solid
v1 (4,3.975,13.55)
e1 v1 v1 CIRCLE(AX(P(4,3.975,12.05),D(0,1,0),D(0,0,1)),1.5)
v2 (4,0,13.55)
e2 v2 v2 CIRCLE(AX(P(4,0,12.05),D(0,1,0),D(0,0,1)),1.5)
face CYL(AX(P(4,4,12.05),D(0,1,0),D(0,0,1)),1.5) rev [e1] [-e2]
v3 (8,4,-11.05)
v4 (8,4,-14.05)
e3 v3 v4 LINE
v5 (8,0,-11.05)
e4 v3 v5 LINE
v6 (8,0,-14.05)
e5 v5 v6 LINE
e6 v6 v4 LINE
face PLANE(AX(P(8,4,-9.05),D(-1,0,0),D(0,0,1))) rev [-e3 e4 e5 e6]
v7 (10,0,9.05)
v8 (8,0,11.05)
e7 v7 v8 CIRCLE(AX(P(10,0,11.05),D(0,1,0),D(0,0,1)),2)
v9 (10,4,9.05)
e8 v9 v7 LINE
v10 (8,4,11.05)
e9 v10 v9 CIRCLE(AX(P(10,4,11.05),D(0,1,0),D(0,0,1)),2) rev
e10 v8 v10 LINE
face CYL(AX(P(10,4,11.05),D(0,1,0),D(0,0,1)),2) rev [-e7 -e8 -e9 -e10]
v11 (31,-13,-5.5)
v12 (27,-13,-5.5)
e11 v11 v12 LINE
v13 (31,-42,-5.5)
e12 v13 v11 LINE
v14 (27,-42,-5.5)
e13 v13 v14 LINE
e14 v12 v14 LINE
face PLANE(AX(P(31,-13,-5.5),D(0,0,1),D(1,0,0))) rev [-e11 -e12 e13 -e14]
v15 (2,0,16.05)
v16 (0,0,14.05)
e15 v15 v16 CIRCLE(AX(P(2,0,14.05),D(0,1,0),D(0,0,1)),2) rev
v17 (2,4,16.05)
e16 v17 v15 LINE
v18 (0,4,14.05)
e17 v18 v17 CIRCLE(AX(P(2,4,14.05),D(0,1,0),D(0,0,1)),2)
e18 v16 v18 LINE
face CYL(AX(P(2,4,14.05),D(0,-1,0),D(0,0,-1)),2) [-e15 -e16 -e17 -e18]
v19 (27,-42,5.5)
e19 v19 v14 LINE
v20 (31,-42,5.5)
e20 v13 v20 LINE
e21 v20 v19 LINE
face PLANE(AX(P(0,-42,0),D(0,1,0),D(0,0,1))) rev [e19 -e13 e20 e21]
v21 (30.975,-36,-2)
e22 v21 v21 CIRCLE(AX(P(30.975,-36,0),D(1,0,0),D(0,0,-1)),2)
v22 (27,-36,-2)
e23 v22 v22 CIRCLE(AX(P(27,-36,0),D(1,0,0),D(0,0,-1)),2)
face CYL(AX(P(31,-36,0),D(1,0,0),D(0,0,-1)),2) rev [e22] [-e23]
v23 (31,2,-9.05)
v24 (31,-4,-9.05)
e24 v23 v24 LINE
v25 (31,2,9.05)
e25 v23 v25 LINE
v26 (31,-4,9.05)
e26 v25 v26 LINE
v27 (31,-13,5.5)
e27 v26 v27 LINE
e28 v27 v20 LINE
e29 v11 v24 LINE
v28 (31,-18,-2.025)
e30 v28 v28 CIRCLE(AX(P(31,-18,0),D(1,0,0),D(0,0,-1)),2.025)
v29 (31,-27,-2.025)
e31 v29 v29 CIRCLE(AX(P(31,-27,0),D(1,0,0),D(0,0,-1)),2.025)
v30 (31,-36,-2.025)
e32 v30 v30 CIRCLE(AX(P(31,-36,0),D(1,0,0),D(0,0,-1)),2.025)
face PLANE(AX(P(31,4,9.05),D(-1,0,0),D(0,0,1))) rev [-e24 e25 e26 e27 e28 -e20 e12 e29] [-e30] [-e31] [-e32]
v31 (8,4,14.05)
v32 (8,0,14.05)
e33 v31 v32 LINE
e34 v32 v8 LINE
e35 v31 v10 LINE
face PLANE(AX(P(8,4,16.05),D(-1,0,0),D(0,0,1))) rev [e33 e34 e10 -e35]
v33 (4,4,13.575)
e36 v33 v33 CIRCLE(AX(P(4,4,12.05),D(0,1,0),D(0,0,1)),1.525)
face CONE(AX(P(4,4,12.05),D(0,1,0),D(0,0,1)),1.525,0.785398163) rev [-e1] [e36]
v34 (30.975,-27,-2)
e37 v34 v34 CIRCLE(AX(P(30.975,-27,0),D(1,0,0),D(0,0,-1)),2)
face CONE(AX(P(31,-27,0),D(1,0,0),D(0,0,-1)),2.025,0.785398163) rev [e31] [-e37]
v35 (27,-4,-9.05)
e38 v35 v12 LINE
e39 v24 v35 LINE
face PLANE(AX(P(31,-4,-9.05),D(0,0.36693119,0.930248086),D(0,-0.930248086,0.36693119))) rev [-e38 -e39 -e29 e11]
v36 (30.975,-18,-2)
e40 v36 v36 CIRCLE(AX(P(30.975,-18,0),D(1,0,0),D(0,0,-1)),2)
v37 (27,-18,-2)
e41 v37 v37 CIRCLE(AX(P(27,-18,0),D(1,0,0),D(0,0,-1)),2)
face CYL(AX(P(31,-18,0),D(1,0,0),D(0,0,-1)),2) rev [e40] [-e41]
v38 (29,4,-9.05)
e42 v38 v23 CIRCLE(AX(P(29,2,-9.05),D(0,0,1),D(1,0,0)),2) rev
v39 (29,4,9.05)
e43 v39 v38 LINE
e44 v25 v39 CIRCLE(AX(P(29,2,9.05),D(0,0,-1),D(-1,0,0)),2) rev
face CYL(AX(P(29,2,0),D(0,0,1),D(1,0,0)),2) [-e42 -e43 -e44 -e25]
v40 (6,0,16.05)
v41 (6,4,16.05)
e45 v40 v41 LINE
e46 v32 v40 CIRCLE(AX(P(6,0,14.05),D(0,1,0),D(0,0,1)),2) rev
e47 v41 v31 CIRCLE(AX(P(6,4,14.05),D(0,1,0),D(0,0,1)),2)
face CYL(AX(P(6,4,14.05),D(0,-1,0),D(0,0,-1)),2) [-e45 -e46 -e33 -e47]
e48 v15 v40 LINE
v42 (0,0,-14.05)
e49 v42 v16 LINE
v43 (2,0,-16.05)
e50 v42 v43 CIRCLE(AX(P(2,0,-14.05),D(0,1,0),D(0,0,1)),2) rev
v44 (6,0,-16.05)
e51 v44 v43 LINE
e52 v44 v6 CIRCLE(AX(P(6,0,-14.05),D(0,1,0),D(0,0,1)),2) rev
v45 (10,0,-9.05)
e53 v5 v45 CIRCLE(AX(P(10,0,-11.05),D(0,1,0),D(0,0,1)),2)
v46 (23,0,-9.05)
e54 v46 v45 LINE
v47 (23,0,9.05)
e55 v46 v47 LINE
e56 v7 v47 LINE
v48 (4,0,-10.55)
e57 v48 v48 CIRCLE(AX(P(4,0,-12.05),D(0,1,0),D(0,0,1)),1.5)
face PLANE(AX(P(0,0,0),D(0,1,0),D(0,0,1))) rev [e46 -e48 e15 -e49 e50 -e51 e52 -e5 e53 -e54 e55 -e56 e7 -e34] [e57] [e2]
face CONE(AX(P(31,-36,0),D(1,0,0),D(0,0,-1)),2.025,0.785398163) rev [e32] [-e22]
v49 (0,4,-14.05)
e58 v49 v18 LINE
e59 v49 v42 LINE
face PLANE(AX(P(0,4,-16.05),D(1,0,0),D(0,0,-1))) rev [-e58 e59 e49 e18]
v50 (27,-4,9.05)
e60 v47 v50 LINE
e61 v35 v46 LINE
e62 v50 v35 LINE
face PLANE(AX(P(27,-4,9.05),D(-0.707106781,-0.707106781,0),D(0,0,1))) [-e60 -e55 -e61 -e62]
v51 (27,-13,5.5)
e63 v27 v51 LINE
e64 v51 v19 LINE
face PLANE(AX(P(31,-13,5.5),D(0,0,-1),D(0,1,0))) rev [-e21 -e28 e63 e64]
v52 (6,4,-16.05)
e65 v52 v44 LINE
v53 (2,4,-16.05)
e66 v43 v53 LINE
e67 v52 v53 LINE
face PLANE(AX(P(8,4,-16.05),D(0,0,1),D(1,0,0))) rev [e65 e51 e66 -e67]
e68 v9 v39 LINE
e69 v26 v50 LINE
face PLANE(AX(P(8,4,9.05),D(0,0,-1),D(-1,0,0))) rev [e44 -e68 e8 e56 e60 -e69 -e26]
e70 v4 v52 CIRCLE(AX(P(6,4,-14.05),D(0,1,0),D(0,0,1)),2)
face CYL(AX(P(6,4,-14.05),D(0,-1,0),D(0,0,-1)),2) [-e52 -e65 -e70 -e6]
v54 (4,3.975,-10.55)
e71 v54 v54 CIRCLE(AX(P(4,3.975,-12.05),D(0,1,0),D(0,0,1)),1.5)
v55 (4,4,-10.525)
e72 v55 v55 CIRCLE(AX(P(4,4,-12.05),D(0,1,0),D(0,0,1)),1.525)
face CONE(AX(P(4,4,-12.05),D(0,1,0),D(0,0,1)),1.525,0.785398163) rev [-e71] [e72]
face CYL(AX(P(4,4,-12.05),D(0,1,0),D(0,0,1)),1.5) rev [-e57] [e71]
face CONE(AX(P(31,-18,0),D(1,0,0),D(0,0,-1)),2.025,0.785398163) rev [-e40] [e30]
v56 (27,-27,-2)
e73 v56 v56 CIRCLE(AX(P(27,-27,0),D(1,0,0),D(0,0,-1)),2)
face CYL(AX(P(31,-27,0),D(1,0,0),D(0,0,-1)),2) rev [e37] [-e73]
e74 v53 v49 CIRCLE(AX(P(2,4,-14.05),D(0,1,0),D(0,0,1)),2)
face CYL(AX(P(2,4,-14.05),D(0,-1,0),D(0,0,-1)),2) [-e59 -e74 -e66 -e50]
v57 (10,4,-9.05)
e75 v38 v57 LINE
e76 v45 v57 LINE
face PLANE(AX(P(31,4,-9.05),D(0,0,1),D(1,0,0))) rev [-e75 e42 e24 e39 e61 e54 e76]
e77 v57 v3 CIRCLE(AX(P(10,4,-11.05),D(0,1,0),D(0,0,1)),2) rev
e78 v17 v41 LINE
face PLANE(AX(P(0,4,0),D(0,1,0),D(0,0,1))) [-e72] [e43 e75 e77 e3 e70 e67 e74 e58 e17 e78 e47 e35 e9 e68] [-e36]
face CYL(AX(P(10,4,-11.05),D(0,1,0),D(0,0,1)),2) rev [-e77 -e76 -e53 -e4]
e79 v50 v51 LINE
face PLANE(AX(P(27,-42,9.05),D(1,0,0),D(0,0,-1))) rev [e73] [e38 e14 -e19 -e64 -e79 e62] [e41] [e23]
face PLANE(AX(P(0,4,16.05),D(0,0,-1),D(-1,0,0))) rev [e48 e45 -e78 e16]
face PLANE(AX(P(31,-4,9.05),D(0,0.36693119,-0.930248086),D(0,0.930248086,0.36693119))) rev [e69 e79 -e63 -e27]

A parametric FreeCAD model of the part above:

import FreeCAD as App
import Part
import Sketcher

V = App.Vector
Q = App.Units.Quantity


def edges_at(feature, points):
    """Names of the edges that pass closest to the given points."""
    edges = feature.Shape.Edges
    near = lambda p: min(range(len(edges)), key=lambda i: edges[i].distToShape(Part.Vertex(*p))[0])
    return sorted({f"Edge{near(p) + 1}" for p in points})


def add_polygon(sketch, points):
    """Adds a closed chain of lines whose ends are joined by coincident constraints."""
    first, n = sketch.GeometryCount, len(points)
    for a, b in zip(points, points[1:] + points[:1]):
        sketch.addGeometry(Part.LineSegment(App.Vector(*a, 0), App.Vector(*b, 0)), False)
    for i in range(n):
        sketch.addConstraint(Sketcher.Constraint("Coincident", first + i, 2, first + (i + 1) % n, 1))

doc = App.newDocument("Part")
params = doc.addObject("Spreadsheet::Sheet", "Params")
for row, (alias, value) in enumerate([
    ("sketch1_width", "8 mm"),
    ("sketch1_width2", "23 mm"),
    ("sketch1_height", "7 mm"),
    ("sketch1_height2", "32.1 mm"),
    ("pad1_length", "4 mm"),
    ("fillet_radius", "2 mm"),
    ("sketch2_diameter", "3 mm"),
    ("hole_diameter", "3 mm"),
    ("hole_csink_diameter", "3.05 mm"),
    ("sketch3_width", "4 mm"),
    ("sketch3_height", "18.1 mm"),
    ("pad2_length", "42 mm"),
    ("chamfer_size", "4 mm"),
    ("fillet2_radius", "2 mm"),
    ("sketch4_diameter", "4 mm"),
    ("hole2_diameter", "4 mm"),
    ("hole2_csink_diameter", "4.05 mm"),
    ("sketch5_width", "38 mm"),
    ("sketch5_width2", "29 mm"),
    ("sketch5_height", "3.55 mm"),
    ("sketch6_width", "29 mm"),
    ("sketch6_width2", "38 mm"),
    ("sketch6_height", "3.55 mm"),
], start=1):
    params.set(f"A{row}", alias)
    params.set(f"B{row}", "=" + value)
    params.setAlias(f"B{row}", alias)

body = doc.addObject("PartDesign::Body", "Body")

# Sketch on XZ plane
sketch1 = doc.addObject("Sketcher::SketchObject", "Sketch")
body.addObject(sketch1)
sketch1.AttachmentSupport = (doc.XZ_Plane, [""])
sketch1.MapMode = "FlatFace"
add_polygon(sketch1, [(0, -16), (0, 16), (8, 16), (8, 9), (31, 9), (31, -9), (8, -9), (8, -16)])  # lines 0-7
sketch1.addConstraint([
    Sketcher.Constraint("Vertical", 0),
    Sketcher.Constraint("Horizontal", 1),
    Sketcher.Constraint("Vertical", 2),
    Sketcher.Constraint("Horizontal", 3),
    Sketcher.Constraint("Vertical", 4),
    Sketcher.Constraint("Horizontal", 5),
    Sketcher.Constraint("Vertical", 6),
    Sketcher.Constraint("Horizontal", 7),
    Sketcher.Constraint("Symmetric", 0, 2, 7, 2, -1, 1),
    Sketcher.Constraint("Symmetric", 2, 2, 5, 2, -1),
    Sketcher.Constraint("DistanceX", 1, 1, 1, 2, Q("8 mm")),
    Sketcher.Constraint("DistanceX", 3, 1, 3, 2, Q("23 mm")),
    Sketcher.Constraint("DistanceY", 2, 2, 2, 1, Q("7 mm")),
    Sketcher.Constraint("DistanceY", 0, 1, 0, 2, Q("32.1 mm")),
])
sketch1.setExpression("Constraints[18]", "Params.sketch1_width")
sketch1.setExpression("Constraints[19]", "Params.sketch1_width2")
sketch1.setExpression("Constraints[20]", "Params.sketch1_height")
sketch1.setExpression("Constraints[21]", "Params.sketch1_height2")
pad1 = doc.addObject("PartDesign::Pad", "Pad")
body.addObject(pad1)
pad1.Profile = sketch1
pad1.setExpression("Length", "Params.pad1_length")
pad1.Reversed = True
doc.recompute()

fillet = doc.addObject("PartDesign::Fillet", "Fillet")
body.addObject(fillet)
fillet.Base = (pad1, edges_at(pad1, [
    (8, 2, -16.05),
    (8, 2, -9.05),
    (8, 2, 9.05),
    (8, 2, 16.05),
    (0, 2, 16.05),
    (0, 2, -16.05),
]))
fillet.setExpression("Radius", "Params.fillet_radius")

# Sketch on XZ plane
sketch2 = doc.addObject("Sketcher::SketchObject", "Sketch001")
body.addObject(sketch2)
sketch2.AttachmentSupport = (doc.XZ_Plane, [""])
sketch2.MapMode = "FlatFace"
sketch2.AttachmentOffset = App.Placement(V(0, 0, -4), App.Rotation())
sketch2.addGeometry([
    Part.Circle(V(4, -12.1, 0), V(0, 0, 1), 1.5),
    Part.Circle(V(4, 12.1, 0), V(0, 0, 1), 1.5),
], False)
sketch2.addConstraint([
    Sketcher.Constraint("Equal", 0, 1),
    Sketcher.Constraint("Symmetric", 0, 3, 1, 3, -1),
    Sketcher.Constraint("Diameter", 0, Q("3 mm")),
    Sketcher.Constraint("DistanceX", -1, 1, 0, 3, Q("4 mm")),
    Sketcher.Constraint("DistanceY", 0, 3, 1, 3, Q("24.1 mm")),
])
sketch2.setExpression("Constraints[2]", "Params.sketch2_diameter")
doc.recompute()
hole = doc.addObject("PartDesign::Hole", "Hole")
body.addObject(hole)
hole.Profile = sketch2
hole.ThreadType = "None"
hole.setExpression("Diameter", "Params.hole_diameter")
hole.DepthType = "ThroughAll"
hole.HoleCutType = "Countersink"
hole.setExpression("HoleCutDiameter", "Params.hole_csink_diameter")
hole.HoleCutCountersinkAngle = 90
hole.Reversed = True

# Sketch on XZ plane
sketch3 = doc.addObject("Sketcher::SketchObject", "Sketch002")
body.addObject(sketch3)
sketch3.AttachmentSupport = (doc.XZ_Plane, [""])
sketch3.MapMode = "FlatFace"
add_polygon(sketch3, [(31, -9.1), (31, 9.1), (27, 9.1), (27, -9.1)])  # lines 0-3
sketch3.addConstraint([
    Sketcher.Constraint("Vertical", 0),
    Sketcher.Constraint("Horizontal", 1),
    Sketcher.Constraint("Vertical", 2),
    Sketcher.Constraint("Horizontal", 3),
    Sketcher.Constraint("DistanceX", 1, 2, 1, 1, Q("4 mm")),
    Sketcher.Constraint("DistanceY", 0, 1, 0, 2, Q("18.1 mm")),
    Sketcher.Constraint("DistanceX", -1, 1, 0, 2, Q("31 mm")),
    Sketcher.Constraint("DistanceY", -1, 1, 0, 2, Q("9.05 mm")),
])
sketch3.setExpression("Constraints[8]", "Params.sketch3_width")
sketch3.setExpression("Constraints[9]", "Params.sketch3_height")
pad2 = doc.addObject("PartDesign::Pad", "Pad001")
body.addObject(pad2)
pad2.Profile = sketch3
pad2.setExpression("Length", "Params.pad2_length")
doc.recompute()

chamfer = doc.addObject("PartDesign::Chamfer", "Chamfer")
body.addObject(chamfer)
chamfer.Base = (pad2, edges_at(pad2, [(27, 0, 0)]))
chamfer.setExpression("Size", "Params.chamfer_size")
doc.recompute()

fillet2 = doc.addObject("PartDesign::Fillet", "Fillet001")
body.addObject(fillet2)
fillet2.Base = (chamfer, edges_at(chamfer, [(31, 4, 0)]))
fillet2.setExpression("Radius", "Params.fillet2_radius")

# Sketch on YZ plane
sketch4 = doc.addObject("Sketcher::SketchObject", "Sketch003")
body.addObject(sketch4)
sketch4.AttachmentSupport = (doc.YZ_Plane, [""])
sketch4.MapMode = "FlatFace"
sketch4.AttachmentOffset = App.Placement(V(0, 0, 31), App.Rotation())
sketch4.addGeometry([
    Part.Circle(V(-36, 0, 0), V(0, 0, 1), 2),
    Part.Circle(V(-27, 0, 0), V(0, 0, 1), 2),
    Part.Circle(V(-18, 0, 0), V(0, 0, 1), 2),
], False)
sketch4.addConstraint([
    Sketcher.Constraint("Equal", 0, 1),
    Sketcher.Constraint("Equal", 1, 2),
    Sketcher.Constraint("PointOnObject", 0, 3, -1),
    Sketcher.Constraint("PointOnObject", 1, 3, -1),
    Sketcher.Constraint("PointOnObject", 2, 3, -1),
    Sketcher.Constraint("Diameter", 0, Q("4 mm")),
    Sketcher.Constraint("DistanceX", 0, 3, -1, 1, Q("36 mm")),
    Sketcher.Constraint("DistanceX", 1, 3, -1, 1, Q("27 mm")),
    Sketcher.Constraint("DistanceX", 2, 3, -1, 1, Q("18 mm")),
])
sketch4.setExpression("Constraints[5]", "Params.sketch4_diameter")
doc.recompute()
hole2 = doc.addObject("PartDesign::Hole", "Hole001")
body.addObject(hole2)
hole2.Profile = sketch4
hole2.ThreadType = "None"
hole2.setExpression("Diameter", "Params.hole2_diameter")
hole2.DepthType = "ThroughAll"
hole2.HoleCutType = "Countersink"
hole2.setExpression("HoleCutDiameter", "Params.hole2_csink_diameter")
hole2.HoleCutCountersinkAngle = 90

# Sketch on YZ plane
sketch5 = doc.addObject("Sketcher::SketchObject", "Sketch004")
body.addObject(sketch5)
sketch5.AttachmentSupport = (doc.YZ_Plane, [""])
sketch5.MapMode = "FlatFace"
sketch5.AttachmentOffset = App.Placement(V(0, 0, 27), App.Rotation())
add_polygon(sketch5, [(-13, -5.5), (-4, -9.1), (-42, -9.1), (-42, -5.5)])  # lines 0-3
sketch5.addConstraint([
    Sketcher.Constraint("Horizontal", 1),
    Sketcher.Constraint("Vertical", 2),
    Sketcher.Constraint("Horizontal", 3),
    Sketcher.Constraint("DistanceX", 1, 2, 1, 1, Q("38 mm")),
    Sketcher.Constraint("DistanceX", 3, 1, 3, 2, Q("29 mm")),
    Sketcher.Constraint("DistanceX", 0, 2, -1, 1, Q("4 mm")),
    Sketcher.Constraint("DistanceY", 2, 1, 2, 2, Q("3.55 mm")),
    Sketcher.Constraint("DistanceY", 2, 2, -1, 1, Q("5.5 mm")),
])
sketch5.setExpression("Constraints[7]", "Params.sketch5_width")
sketch5.setExpression("Constraints[8]", "Params.sketch5_width2")
sketch5.setExpression("Constraints[10]", "Params.sketch5_height")
pocket1 = doc.addObject("PartDesign::Pocket", "Pocket")
body.addObject(pocket1)
pocket1.Profile = sketch5
pocket1.Type = "ThroughAll"
pocket1.Midplane = True

# Sketch on YZ plane
sketch6 = doc.addObject("Sketcher::SketchObject", "Sketch005")
body.addObject(sketch6)
sketch6.AttachmentSupport = (doc.YZ_Plane, [""])
sketch6.MapMode = "FlatFace"
sketch6.AttachmentOffset = App.Placement(V(0, 0, 27), App.Rotation())
add_polygon(sketch6, [(-4, 9.1), (-13, 5.5), (-42, 5.5), (-42, 9.1)])  # lines 0-3
sketch6.addConstraint([
    Sketcher.Constraint("Horizontal", 1),
    Sketcher.Constraint("Vertical", 2),
    Sketcher.Constraint("Horizontal", 3),
    Sketcher.Constraint("DistanceX", 1, 2, 1, 1, Q("29 mm")),
    Sketcher.Constraint("DistanceX", 3, 1, 3, 2, Q("38 mm")),
    Sketcher.Constraint("DistanceX", 0, 2, -1, 1, Q("13 mm")),
    Sketcher.Constraint("DistanceY", 2, 1, 2, 2, Q("3.55 mm")),
    Sketcher.Constraint("DistanceY", -1, 1, 0, 2, Q("5.5 mm")),
])
sketch6.setExpression("Constraints[7]", "Params.sketch6_width")
sketch6.setExpression("Constraints[8]", "Params.sketch6_width2")
sketch6.setExpression("Constraints[10]", "Params.sketch6_height")
pocket2 = doc.addObject("PartDesign::Pocket", "Pocket001")
body.addObject(pocket2)
pocket2.Profile = sketch6
pocket2.Type = "ThroughAll"
pocket2.Midplane = True

doc.recompute()
